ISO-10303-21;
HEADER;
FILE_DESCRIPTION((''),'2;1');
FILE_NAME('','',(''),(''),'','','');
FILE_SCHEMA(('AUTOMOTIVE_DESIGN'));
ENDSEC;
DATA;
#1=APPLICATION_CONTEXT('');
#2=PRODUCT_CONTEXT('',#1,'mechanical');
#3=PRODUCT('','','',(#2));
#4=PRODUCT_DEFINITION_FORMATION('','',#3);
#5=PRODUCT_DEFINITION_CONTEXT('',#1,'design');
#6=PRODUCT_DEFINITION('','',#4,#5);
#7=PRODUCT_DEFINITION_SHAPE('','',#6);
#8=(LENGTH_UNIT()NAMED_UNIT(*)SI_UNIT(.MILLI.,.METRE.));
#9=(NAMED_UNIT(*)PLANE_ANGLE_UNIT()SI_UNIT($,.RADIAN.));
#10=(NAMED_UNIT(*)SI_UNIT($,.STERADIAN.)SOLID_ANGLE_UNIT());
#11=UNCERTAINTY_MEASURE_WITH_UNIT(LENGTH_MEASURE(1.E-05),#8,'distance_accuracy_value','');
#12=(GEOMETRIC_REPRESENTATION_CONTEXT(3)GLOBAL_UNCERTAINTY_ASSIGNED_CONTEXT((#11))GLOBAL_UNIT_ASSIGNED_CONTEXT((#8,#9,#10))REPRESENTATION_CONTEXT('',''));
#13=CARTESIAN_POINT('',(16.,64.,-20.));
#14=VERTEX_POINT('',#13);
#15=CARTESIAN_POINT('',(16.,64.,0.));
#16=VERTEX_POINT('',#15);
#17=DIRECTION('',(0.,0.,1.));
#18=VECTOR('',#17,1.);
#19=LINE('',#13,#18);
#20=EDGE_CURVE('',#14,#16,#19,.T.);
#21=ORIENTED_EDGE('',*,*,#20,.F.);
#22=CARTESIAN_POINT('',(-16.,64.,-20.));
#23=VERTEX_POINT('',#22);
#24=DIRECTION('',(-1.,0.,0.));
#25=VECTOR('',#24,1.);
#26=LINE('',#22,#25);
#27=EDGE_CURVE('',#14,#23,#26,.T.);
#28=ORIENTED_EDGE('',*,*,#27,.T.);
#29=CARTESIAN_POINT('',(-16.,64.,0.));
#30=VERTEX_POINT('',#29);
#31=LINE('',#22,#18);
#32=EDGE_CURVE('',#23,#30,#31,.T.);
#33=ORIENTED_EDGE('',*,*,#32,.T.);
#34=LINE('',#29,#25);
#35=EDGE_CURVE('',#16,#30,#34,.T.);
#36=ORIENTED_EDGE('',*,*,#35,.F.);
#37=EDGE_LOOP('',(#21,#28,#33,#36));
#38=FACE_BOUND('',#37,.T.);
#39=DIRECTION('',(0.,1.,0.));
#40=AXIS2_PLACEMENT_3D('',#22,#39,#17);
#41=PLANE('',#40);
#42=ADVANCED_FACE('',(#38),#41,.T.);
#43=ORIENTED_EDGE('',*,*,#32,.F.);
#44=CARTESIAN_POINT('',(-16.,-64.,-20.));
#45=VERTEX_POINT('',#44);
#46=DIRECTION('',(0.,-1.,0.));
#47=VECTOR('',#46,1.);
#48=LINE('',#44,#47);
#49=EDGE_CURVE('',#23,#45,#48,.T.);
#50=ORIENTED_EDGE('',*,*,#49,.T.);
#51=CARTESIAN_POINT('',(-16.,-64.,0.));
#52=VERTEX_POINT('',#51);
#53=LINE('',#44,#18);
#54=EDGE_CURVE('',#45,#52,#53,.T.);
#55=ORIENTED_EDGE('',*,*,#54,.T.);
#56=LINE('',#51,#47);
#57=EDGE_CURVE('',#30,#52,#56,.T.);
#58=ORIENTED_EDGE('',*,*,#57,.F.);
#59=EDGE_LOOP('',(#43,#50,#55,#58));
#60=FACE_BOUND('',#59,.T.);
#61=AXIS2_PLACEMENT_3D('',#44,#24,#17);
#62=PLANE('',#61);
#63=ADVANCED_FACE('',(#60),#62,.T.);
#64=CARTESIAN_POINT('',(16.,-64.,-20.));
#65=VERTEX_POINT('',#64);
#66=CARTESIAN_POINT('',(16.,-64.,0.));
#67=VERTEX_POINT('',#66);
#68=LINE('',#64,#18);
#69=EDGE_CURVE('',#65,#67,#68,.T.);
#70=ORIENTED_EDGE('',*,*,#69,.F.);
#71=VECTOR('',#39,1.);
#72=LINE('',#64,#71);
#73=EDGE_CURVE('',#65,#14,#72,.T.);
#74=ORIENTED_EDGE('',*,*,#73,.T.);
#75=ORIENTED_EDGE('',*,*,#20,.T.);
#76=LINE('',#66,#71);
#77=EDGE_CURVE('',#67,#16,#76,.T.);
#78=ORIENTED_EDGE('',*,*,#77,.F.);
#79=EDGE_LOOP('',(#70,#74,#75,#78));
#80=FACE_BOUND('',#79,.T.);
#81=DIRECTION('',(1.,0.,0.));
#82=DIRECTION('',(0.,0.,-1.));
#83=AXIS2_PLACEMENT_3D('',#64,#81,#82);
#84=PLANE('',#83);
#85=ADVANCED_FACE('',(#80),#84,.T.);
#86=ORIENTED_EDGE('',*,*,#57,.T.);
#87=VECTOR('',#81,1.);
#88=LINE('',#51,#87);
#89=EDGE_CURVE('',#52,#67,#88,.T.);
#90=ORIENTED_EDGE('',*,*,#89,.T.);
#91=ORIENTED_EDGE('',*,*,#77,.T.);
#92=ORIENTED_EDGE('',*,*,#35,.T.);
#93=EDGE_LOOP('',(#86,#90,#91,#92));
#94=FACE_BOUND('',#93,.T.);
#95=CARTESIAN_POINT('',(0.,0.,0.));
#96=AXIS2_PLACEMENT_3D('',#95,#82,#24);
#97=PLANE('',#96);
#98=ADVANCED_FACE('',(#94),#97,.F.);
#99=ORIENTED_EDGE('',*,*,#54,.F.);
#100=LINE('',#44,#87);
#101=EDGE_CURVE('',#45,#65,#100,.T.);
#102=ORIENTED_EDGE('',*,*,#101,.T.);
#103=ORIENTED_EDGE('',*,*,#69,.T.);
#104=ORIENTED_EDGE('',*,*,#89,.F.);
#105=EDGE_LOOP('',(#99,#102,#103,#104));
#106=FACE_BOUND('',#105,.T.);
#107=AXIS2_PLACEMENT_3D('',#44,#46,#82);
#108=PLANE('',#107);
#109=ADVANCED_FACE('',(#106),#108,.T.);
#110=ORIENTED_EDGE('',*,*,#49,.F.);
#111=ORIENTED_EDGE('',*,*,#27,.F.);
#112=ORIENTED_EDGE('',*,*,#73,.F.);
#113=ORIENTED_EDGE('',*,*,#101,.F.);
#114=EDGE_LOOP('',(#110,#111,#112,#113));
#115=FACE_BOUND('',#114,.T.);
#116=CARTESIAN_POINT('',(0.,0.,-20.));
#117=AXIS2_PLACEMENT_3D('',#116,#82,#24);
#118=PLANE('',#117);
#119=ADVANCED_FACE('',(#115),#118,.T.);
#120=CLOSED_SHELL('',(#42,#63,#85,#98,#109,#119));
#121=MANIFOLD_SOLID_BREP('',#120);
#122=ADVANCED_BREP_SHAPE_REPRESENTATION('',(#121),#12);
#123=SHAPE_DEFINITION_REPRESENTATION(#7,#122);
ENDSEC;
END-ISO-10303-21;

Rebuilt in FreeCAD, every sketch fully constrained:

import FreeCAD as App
import Part
import Sketcher

V = App.Vector
Q = App.Units.Quantity

doc = App.newDocument("Part")
body = doc.addObject("PartDesign::Body", "Body")

# Sketch on XY plane
sketch1 = body.newObject("Sketcher::SketchObject", "Sketch")
sketch1.AttachmentSupport = (doc.getObject("XY_Plane"), [""])
sketch1.MapMode = "FlatFace"
sketch1.addGeometry([
    Part.LineSegment(V(-16, 64, 0), V(-16, -64, 0)),
    Part.LineSegment(V(-16, -64, 0), V(16, -64, 0)),
    Part.LineSegment(V(16, -64, 0), V(16, 64, 0)),
    Part.LineSegment(V(16, 64, 0), V(-16, 64, 0)),
], False)
sketch1.addConstraint([
    Sketcher.Constraint("Coincident", 0, 2, 1, 1),
    Sketcher.Constraint("Coincident", 1, 2, 2, 1),
    Sketcher.Constraint("Coincident", 2, 2, 3, 1),
    Sketcher.Constraint("Coincident", 3, 2, 0, 1),
    Sketcher.Constraint("Vertical", 0),
    Sketcher.Constraint("Horizontal", 1),
    Sketcher.Constraint("Vertical", 2),
    Sketcher.Constraint("Horizontal", 3),
    Sketcher.Constraint("Symmetric", 0, 2, 2, 2, -1, 1),
    Sketcher.Constraint("DistanceX", 1, 1, 1, 2, Q("32 mm")),
    Sketcher.Constraint("DistanceY", 0, 2, 0, 1, Q("128 mm")),
])
pad1 = body.newObject("PartDesign::Pad", "Pad")
pad1.Profile = sketch1
pad1.Length = 20
pad1.Reversed = True

doc.recompute()
